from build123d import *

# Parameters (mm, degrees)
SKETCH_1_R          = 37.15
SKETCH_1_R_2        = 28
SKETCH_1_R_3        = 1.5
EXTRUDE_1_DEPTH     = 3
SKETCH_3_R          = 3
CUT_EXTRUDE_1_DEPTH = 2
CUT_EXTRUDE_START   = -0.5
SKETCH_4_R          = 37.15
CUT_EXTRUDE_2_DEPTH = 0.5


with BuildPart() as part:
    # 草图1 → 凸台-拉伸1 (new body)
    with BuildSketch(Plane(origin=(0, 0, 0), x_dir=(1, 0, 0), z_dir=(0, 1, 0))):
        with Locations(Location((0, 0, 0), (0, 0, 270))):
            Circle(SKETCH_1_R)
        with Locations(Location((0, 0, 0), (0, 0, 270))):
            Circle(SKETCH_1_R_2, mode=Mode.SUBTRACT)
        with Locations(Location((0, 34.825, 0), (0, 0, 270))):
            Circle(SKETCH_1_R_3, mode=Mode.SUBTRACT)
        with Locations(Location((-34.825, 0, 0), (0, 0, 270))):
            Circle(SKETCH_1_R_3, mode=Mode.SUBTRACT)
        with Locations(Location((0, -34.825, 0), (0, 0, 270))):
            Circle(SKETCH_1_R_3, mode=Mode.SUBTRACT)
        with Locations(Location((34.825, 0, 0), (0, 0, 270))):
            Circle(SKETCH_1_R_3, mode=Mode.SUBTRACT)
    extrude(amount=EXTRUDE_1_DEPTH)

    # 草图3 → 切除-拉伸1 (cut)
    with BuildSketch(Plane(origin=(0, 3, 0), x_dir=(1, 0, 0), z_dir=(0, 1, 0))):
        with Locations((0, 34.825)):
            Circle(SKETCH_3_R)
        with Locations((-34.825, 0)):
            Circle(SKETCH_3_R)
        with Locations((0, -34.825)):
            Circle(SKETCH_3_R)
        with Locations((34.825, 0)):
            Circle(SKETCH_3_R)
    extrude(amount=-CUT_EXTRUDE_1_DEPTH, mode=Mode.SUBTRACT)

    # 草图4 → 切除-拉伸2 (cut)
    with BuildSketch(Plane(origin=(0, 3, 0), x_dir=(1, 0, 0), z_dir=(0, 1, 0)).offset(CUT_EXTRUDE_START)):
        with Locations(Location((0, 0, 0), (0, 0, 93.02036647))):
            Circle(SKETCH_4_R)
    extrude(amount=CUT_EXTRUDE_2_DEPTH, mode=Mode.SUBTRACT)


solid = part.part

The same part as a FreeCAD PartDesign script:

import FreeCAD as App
import Part
import Sketcher
from FreeCAD import Vector
Q = App.Units.Quantity

doc = App.newDocument("Part")
params = doc.addObject("Spreadsheet::Sheet", "Params")
for row, (alias, value) in enumerate([
    ("sketch1_diameter", "3 mm"),
    ("sketch1_diameter2", "56 mm"),
    ("sketch1_diameter3", "74.3 mm"),
    ("pad1_length", "3 mm"),
    ("sketch2_diameter", "6 mm"),
    ("pocket1_length", "2 mm"),
    ("sketch3_diameter", "74.3 mm"),
    ("pocket2_length", "0.5 mm"),
], start=1):
    params.set(f"A{row}", alias)
    params.set(f"B{row}", "=" + value)
    params.setAlias(f"B{row}", alias)

body = doc.addObject("PartDesign::Body", "Body")

# Sketch on XZ plane
sketch1 = body.newObject("Sketcher::SketchObject", "Sketch")
sketch1.AttachmentSupport = (doc.getObject("XZ_Plane"), [""])
sketch1.MapMode = "FlatFace"
sketch1.addGeometry([
    Part.Circle(Vector(0, 0, 0), Vector(0, 0, 1), 37.15),  # 0
    Part.Circle(Vector(0, -34.825, 0), Vector(0, 0, 1), 1.5),  # 1
    Part.Circle(Vector(-34.825, 0, 0), Vector(0, 0, 1), 1.5),  # 2
    Part.Circle(Vector(34.825, 0, 0), Vector(0, 0, 1), 1.5),  # 3
    Part.Circle(Vector(0, 0, 0), Vector(0, 0, 1), 28),  # 4
    Part.Circle(Vector(0, 34.825, 0), Vector(0, 0, 1), 1.5),  # 5
], False)
sketch1.addConstraint([
    Sketcher.Constraint("Coincident", 0, 3, -1, 1),
    Sketcher.Constraint("Coincident", 4, 3, -1, 1),
    Sketcher.Constraint("Equal", 1, 2),
    Sketcher.Constraint("Equal", 2, 3),
    Sketcher.Constraint("Equal", 3, 5),
    Sketcher.Constraint("Symmetric", 2, 3, 3, 3, -1, 1),
    Sketcher.Constraint("Symmetric", 1, 3, 5, 3, -1, 1),
    Sketcher.Constraint("PointOnObject", 1, 3, -2),
    Sketcher.Constraint("PointOnObject", 2, 3, -1),
    Sketcher.Constraint("Diameter", 1, Q("3 mm")),
    Sketcher.Constraint("Diameter", 4, Q("56 mm")),
    Sketcher.Constraint("Diameter", 0, Q("74.3 mm")),
    Sketcher.Constraint("DistanceX", 2, 3, 3, 3, Q("69.65 mm")),
    Sketcher.Constraint("DistanceY", 1, 3, 5, 3, Q("69.65 mm")),
])
sketch1.setExpression("Constraints[9]", "Params.sketch1_diameter")
sketch1.setExpression("Constraints[10]", "Params.sketch1_diameter2")
sketch1.setExpression("Constraints[11]", "Params.sketch1_diameter3")
pad1 = body.newObject("PartDesign::Pad", "Pad")
pad1.Profile = sketch1
pad1.setExpression("Length", "Params.pad1_length")
pad1.Reversed = True

# Sketch on XZ plane
sketch2 = body.newObject("Sketcher::SketchObject", "Sketch001")
sketch2.AttachmentSupport = (doc.getObject("XZ_Plane"), [""])
sketch2.MapMode = "FlatFace"
sketch2.AttachmentOffset = App.Placement(Vector(0, 0, -3), App.Rotation())
sketch2.addGeometry([
    Part.Circle(Vector(0, -34.825, 0), Vector(0, 0, 1), 3),
    Part.Circle(Vector(-34.825, 0, 0), Vector(0, 0, 1), 3),
    Part.Circle(Vector(0, 34.825, 0), Vector(0, 0, 1), 3),
    Part.Circle(Vector(34.825, 0, 0), Vector(0, 0, 1), 3),
], False)
sketch2.addConstraint([
    Sketcher.Constraint("Equal", 0, 1),
    Sketcher.Constraint("Equal", 1, 2),
    Sketcher.Constraint("Equal", 2, 3),
    Sketcher.Constraint("Symmetric", 0, 3, 2, 3, -1, 1),
    Sketcher.Constraint("Symmetric", 1, 3, 3, 3, -1, 1),
    Sketcher.Constraint("PointOnObject", 0, 3, -2),
    Sketcher.Constraint("PointOnObject", 1, 3, -1),
    Sketcher.Constraint("Diameter", 0, Q("6 mm")),
    Sketcher.Constraint("DistanceY", 0, 3, 2, 3, Q("69.65 mm")),
    Sketcher.Constraint("DistanceX", 1, 3, 3, 3, Q("69.65 mm")),
])
sketch2.setExpression("Constraints[7]", "Params.sketch2_diameter")
pocket1 = body.newObject("PartDesign::Pocket", "Pocket")
pocket1.Profile = sketch2
pocket1.setExpression("Length", "Params.pocket1_length")
pocket1.Reversed = True

# Sketch on XZ plane
sketch3 = body.newObject("Sketcher::SketchObject", "Sketch002")
sketch3.AttachmentSupport = (doc.getObject("XZ_Plane"), [""])
sketch3.MapMode = "FlatFace"
sketch3.AttachmentOffset = App.Placement(Vector(0, 0, -2.5), App.Rotation())
sketch3.addGeometry(Part.Circle(Vector(0, 0, 0), Vector(0, 0, 1), 37.15), False)
sketch3.addConstraint([
    Sketcher.Constraint("Coincident", 0, 3, -1, 1),
    Sketcher.Constraint("Diameter", 0, Q("74.3 mm")),
])
sketch3.setExpression("Constraints[1]", "Params.sketch3_diameter")
pocket2 = body.newObject("PartDesign::Pocket", "Pocket001")
pocket2.Profile = sketch3
pocket2.setExpression("Length", "Params.pocket2_length")

doc.recompute()
